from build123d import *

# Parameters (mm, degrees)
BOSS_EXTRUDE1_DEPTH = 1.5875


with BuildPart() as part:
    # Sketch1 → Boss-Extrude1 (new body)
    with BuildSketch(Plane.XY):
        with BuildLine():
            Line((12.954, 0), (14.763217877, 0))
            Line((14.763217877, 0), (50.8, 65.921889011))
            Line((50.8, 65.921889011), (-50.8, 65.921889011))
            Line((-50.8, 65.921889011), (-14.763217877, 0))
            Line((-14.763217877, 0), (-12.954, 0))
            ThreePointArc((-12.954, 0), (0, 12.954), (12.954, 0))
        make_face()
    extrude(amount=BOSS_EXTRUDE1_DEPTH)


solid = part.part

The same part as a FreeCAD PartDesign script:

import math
import FreeCAD as App
import Part
import Sketcher

V = App.Vector
Q = App.Units.Quantity

doc = App.newDocument("Part")
params = doc.addObject("Spreadsheet::Sheet", "Params")
for row, (alias, value) in enumerate([
    ("sketch1_width", "4 in"),
    ("sketch1_radius", "0.51 in"),
    ("pad1_length", "0.0625 in"),
], start=1):
    params.set(f"A{row}", alias)
    params.set(f"B{row}", "=" + value)
    params.setAlias(f"B{row}", alias)

body = doc.addObject("PartDesign::Body", "Body")

# Sketch on XY plane
sketch1 = doc.addObject("Sketcher::SketchObject", "Sketch")
body.addObject(sketch1)
sketch1.AttachmentSupport = (doc.XY_Plane, [""])
sketch1.MapMode = "FlatFace"
sketch1.addGeometry([
    Part.LineSegment(V(13, 0, 0), V(14.8, 0, 0)),  # 0
    Part.LineSegment(V(14.8, 0, 0), V(50.8, 65.9, 0)),  # 1
    Part.LineSegment(V(50.8, 65.9, 0), V(-50.8, 65.9, 0)),  # 2
    Part.LineSegment(V(-50.8, 65.9, 0), V(-14.8, 0, 0)),  # 3
    Part.LineSegment(V(-14.8, 0, 0), V(-13, 0, 0)),  # 4
    Part.ArcOfCircle(Part.Circle(V(0, 0, 0), V(0, 0, 1), 13), math.radians(0), math.radians(180)),  # 5
], False)
sketch1.addConstraint([
    Sketcher.Constraint("Coincident", 0, 2, 1, 1),
    Sketcher.Constraint("Coincident", 1, 2, 2, 1),
    Sketcher.Constraint("Coincident", 2, 2, 3, 1),
    Sketcher.Constraint("Coincident", 3, 2, 4, 1),
    Sketcher.Constraint("Coincident", 4, 2, 5, 2),
    Sketcher.Constraint("Coincident", 5, 1, 0, 1),
    Sketcher.Constraint("Horizontal", 0),
    Sketcher.Constraint("Horizontal", 2),
    Sketcher.Constraint("Horizontal", 4),
    Sketcher.Constraint("Coincident", 5, 3, -1, 1),
    Sketcher.Constraint("Symmetric", 0, 2, 3, 2, -1, 1),
    Sketcher.Constraint("PointOnObject", 0, 2, -1),
    Sketcher.Constraint("Equal", 1, 3),
    Sketcher.Constraint("DistanceX", 2, 2, 2, 1, Q("4 in")),
    Sketcher.Constraint("Radius", 5, Q("0.51 in")),
    Sketcher.Constraint("DistanceX", 0, 1, 0, 2, 1.809218),
    Sketcher.Constraint("DistanceY", -1, 1, 1, 2, 65.921889),
])
sketch1.setExpression("Constraints[13]", "Params.sketch1_width")
sketch1.setExpression("Constraints[14]", "Params.sketch1_radius")
pad1 = doc.addObject("PartDesign::Pad", "Pad")
body.addObject(pad1)
pad1.Profile = sketch1
pad1.setExpression("Length", "Params.pad1_length")

doc.recompute()
